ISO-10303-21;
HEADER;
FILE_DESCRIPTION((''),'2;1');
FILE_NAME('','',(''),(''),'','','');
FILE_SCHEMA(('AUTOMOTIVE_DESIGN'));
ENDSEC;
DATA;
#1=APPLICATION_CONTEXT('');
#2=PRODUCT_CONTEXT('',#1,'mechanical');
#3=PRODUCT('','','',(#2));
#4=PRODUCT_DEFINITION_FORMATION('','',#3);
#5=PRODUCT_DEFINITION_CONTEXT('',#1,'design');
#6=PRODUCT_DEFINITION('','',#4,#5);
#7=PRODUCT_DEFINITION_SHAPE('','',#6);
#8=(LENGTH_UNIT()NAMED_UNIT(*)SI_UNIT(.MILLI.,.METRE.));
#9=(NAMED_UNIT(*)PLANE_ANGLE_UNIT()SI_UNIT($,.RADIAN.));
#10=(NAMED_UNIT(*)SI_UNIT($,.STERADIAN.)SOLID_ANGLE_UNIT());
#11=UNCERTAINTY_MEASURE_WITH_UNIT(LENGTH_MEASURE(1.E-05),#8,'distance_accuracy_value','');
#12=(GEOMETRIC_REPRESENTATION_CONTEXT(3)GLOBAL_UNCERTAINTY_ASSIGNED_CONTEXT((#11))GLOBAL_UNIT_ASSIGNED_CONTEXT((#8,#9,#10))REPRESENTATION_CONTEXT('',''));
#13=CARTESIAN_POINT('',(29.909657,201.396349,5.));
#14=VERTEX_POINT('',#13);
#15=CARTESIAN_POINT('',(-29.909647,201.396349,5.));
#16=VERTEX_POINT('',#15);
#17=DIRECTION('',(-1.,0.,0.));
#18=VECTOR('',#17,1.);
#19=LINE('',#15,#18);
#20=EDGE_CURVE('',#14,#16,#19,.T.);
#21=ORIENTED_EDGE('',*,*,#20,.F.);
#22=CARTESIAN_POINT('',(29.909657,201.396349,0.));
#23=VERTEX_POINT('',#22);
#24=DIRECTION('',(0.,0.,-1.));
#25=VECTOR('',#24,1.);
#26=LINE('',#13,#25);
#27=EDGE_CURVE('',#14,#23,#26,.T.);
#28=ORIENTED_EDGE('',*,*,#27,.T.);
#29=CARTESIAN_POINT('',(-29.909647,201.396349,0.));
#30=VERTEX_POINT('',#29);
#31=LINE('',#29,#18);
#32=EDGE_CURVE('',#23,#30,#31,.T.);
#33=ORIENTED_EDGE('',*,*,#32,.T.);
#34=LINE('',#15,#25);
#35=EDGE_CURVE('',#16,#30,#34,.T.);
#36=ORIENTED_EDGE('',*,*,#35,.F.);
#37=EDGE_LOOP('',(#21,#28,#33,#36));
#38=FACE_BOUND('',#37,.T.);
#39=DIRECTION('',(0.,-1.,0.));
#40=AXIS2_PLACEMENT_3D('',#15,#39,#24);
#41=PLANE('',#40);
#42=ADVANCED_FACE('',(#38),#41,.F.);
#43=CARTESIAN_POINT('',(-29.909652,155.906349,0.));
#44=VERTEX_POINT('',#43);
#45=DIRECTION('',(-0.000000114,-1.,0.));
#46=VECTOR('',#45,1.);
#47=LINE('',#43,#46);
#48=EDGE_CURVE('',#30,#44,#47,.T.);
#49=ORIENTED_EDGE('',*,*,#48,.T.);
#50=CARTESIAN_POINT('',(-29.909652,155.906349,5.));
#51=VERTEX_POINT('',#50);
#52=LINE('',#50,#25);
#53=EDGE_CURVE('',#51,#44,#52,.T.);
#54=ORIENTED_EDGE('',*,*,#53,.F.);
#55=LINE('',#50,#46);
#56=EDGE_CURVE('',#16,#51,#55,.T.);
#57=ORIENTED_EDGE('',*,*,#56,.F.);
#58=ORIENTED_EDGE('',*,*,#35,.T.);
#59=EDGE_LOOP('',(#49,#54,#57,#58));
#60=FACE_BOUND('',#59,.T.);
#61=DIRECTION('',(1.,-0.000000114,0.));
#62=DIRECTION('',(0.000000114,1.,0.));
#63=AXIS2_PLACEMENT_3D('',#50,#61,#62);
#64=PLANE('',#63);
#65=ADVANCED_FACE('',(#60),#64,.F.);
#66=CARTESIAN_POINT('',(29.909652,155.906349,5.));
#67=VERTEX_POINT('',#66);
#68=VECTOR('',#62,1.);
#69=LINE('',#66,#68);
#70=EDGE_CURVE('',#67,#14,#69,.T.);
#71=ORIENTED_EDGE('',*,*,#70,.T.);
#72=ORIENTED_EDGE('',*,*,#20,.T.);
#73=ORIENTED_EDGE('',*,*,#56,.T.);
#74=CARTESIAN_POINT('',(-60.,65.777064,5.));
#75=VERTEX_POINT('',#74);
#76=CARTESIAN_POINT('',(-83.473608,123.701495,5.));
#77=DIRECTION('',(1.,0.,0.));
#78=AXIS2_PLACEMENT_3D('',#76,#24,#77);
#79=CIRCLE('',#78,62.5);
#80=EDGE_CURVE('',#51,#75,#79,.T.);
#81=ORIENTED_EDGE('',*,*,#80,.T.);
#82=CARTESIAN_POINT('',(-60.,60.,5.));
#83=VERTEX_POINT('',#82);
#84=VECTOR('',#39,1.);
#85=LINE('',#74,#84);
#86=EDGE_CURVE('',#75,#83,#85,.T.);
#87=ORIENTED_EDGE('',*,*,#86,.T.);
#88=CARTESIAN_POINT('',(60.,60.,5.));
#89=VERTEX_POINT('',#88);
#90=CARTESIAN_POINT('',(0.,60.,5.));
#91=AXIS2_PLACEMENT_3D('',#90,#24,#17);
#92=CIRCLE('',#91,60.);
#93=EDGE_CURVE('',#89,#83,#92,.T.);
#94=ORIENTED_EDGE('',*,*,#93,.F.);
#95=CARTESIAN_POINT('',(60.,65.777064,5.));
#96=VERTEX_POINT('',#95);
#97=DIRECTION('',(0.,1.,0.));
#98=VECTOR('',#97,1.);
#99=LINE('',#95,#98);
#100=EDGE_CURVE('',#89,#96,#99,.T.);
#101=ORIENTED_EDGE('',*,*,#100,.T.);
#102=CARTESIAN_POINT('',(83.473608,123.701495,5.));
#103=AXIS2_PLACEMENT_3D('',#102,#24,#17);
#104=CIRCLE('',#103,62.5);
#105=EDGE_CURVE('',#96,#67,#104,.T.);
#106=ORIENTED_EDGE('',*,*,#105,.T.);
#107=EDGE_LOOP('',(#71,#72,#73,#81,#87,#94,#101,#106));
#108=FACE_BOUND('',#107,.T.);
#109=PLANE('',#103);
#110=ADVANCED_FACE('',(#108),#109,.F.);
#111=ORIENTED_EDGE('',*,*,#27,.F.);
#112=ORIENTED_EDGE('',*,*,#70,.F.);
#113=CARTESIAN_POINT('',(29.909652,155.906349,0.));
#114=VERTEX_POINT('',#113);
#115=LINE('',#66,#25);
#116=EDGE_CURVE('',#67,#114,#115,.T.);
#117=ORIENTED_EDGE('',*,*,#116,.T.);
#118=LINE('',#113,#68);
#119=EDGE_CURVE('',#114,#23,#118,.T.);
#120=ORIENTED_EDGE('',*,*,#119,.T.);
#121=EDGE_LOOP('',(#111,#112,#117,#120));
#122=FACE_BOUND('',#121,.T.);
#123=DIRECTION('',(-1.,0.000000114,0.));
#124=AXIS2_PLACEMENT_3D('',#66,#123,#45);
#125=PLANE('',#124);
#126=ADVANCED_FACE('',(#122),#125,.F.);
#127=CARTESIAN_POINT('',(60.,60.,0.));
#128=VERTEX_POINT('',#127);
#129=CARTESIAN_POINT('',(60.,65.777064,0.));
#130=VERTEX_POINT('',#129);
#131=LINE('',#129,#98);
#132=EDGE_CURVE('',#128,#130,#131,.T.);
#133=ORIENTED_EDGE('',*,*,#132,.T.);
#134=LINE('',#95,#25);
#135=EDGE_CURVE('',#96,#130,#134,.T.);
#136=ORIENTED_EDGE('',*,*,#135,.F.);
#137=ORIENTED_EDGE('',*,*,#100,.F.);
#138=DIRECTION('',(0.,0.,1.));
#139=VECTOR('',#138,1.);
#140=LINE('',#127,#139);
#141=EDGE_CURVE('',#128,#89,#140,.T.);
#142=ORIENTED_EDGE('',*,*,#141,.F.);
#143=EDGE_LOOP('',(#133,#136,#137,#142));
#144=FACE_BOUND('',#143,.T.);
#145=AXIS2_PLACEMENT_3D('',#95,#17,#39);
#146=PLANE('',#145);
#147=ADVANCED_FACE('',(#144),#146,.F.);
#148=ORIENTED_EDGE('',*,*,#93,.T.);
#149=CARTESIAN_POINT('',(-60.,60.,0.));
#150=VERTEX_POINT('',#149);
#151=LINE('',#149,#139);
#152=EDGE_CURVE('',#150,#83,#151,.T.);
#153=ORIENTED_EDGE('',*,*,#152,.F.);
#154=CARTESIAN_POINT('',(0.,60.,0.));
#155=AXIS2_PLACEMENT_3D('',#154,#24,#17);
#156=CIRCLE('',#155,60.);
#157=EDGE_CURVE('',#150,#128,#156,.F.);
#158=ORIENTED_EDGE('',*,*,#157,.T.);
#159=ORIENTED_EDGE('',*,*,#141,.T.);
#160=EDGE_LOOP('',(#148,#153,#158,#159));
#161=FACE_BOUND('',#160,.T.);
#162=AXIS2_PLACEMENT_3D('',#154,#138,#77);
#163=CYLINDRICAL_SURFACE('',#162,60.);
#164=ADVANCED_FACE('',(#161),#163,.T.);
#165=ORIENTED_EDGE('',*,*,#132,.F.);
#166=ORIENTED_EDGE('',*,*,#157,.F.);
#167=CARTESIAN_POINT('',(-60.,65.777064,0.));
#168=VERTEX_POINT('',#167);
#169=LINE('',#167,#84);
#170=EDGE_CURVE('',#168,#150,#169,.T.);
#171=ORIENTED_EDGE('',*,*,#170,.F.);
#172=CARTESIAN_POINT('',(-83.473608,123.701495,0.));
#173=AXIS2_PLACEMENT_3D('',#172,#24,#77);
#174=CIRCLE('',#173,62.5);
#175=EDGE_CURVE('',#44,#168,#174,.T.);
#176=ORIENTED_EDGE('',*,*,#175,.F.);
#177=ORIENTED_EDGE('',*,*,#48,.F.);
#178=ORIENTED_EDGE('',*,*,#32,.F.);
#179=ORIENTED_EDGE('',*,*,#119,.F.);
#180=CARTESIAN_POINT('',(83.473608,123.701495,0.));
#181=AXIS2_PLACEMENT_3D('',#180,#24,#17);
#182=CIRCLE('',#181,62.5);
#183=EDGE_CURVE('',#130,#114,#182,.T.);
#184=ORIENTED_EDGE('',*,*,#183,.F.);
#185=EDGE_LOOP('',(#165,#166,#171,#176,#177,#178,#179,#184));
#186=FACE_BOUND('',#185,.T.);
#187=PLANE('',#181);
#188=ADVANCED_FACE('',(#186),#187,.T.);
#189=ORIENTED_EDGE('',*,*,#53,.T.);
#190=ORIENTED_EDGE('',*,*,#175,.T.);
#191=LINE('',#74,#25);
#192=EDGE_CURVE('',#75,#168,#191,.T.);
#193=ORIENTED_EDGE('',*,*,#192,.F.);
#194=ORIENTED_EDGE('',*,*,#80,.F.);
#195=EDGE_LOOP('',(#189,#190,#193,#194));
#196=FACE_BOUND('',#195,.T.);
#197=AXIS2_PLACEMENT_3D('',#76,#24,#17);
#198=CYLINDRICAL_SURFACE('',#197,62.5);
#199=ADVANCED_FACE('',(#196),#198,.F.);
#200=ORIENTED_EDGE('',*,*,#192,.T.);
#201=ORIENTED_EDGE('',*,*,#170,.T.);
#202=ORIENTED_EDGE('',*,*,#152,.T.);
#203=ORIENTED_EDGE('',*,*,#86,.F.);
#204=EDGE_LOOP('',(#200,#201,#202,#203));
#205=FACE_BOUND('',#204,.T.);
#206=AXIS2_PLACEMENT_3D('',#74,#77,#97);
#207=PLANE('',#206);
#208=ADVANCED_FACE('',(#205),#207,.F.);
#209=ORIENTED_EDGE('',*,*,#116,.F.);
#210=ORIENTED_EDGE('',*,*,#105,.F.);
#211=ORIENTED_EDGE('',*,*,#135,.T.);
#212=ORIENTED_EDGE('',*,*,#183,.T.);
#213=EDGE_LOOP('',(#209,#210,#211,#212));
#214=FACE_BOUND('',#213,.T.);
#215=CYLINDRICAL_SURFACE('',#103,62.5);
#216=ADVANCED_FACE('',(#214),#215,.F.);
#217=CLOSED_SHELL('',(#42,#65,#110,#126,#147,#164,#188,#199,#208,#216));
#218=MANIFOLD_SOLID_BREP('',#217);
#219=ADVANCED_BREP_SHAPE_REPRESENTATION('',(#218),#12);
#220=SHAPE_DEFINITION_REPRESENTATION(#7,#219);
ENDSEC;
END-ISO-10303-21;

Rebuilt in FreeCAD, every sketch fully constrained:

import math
import FreeCAD as App
import Part
import Sketcher
Q = App.Units.Quantity

doc = App.newDocument("Part")
params = doc.addObject("Spreadsheet::Sheet", "Params")
for row, (alias, value) in enumerate([
    ("sketch1_radius", "62.5 mm"),
    ("sketch1_width", "120 mm"),
    ("sketch1_length", "45.49 mm"),
    ("pad1_length", "5 mm"),
    ("sketch2_radius", "60 mm"),
], start=1):
    params.set(f"A{row}", alias)
    params.set(f"B{row}", "=" + value)
    params.setAlias(f"B{row}", alias)

body = doc.addObject("PartDesign::Body", "Body")

sketch1 = doc.addObject("Sketcher::SketchObject", "Sketch")
body.addObject(sketch1)
sketch1.AttachmentSupport = (doc.XY_Plane, [""])
sketch1.MapMode = "FlatFace"
sketch1.addGeometry(Part.LineSegment(App.Vector(60, 0, 0), App.Vector(60, 65.777064, 0)), False)
sketch1.addGeometry(Part.ArcOfCircle(Part.Circle(App.Vector(83.473608, 123.701495, 0), App.Vector(0, 0, 1), 62.5), math.radians(148.983983), math.radians(247.939976)), False)
sketch1.addGeometry(Part.LineSegment(App.Vector(29.909652, 155.906349, 0), App.Vector(29.909657, 201.396349, 0)), False)
sketch1.addGeometry(Part.LineSegment(App.Vector(29.909657, 201.396349, 0), App.Vector(-29.909647, 201.396349, 0)), False)
sketch1.addGeometry(Part.LineSegment(App.Vector(-29.909647, 201.396349, 0), App.Vector(-29.909652, 155.906349, 0)), False)
sketch1.addGeometry(Part.ArcOfCircle(Part.Circle(App.Vector(-83.473608, 123.701495, 0), App.Vector(0, 0, 1), 62.5), math.radians(-67.939976), math.radians(31.016017)), False)
sketch1.addGeometry(Part.LineSegment(App.Vector(-60, 65.777064, 0), App.Vector(-60, 0, 0)), False)
sketch1.addGeometry(Part.LineSegment(App.Vector(-60, 0, 0), App.Vector(60, 0, 0)), False)
sketch1.addConstraint(Sketcher.Constraint("Coincident", 0, 2, 1, 2))
sketch1.addConstraint(Sketcher.Constraint("Coincident", 1, 1, 2, 1))
sketch1.addConstraint(Sketcher.Constraint("Coincident", 2, 2, 3, 1))
sketch1.addConstraint(Sketcher.Constraint("Coincident", 3, 2, 4, 1))
sketch1.addConstraint(Sketcher.Constraint("Coincident", 4, 2, 5, 2))
sketch1.addConstraint(Sketcher.Constraint("Coincident", 5, 1, 6, 1))
sketch1.addConstraint(Sketcher.Constraint("Coincident", 6, 2, 7, 1))
sketch1.addConstraint(Sketcher.Constraint("Coincident", 7, 2, 0, 1))
sketch1.addConstraint(Sketcher.Constraint("Vertical", 0))
sketch1.addConstraint(Sketcher.Constraint("Horizontal", 3))
sketch1.addConstraint(Sketcher.Constraint("Vertical", 6))
sketch1.addConstraint(Sketcher.Constraint("Horizontal", 7))
sketch1.addConstraint(Sketcher.Constraint("Equal", 1, 5))
sketch1.addConstraint(Sketcher.Constraint("Symmetric", 6, 2, 7, 2, -1, 1))
sketch1.addConstraint(Sketcher.Constraint("Symmetric", 1, 3, 5, 3, -2))
sketch1.addConstraint(Sketcher.Constraint("Parallel", 2, 4))
sketch1.addConstraint(Sketcher.Constraint("Horizontal", 1, 1, 4, 2))
sketch1.addConstraint(Sketcher.Constraint("Radius", 1, Q("62.5 mm")))
sketch1.addConstraint(Sketcher.Constraint("DistanceX", 7, 1, 7, 2, Q("120 mm")))
sketch1.addConstraint(Sketcher.Constraint("Angle", 2, Q("89.999993 deg")))
sketch1.addConstraint(Sketcher.Constraint("Distance", 2, Q("45.49 mm")))
sketch1.addConstraint(Sketcher.Constraint("DistanceX", 3, 2, 1, 1, Q("59.819299 mm")))
sketch1.addConstraint(Sketcher.Constraint("DistanceY", 0, 1, 0, 2, Q("65.777064 mm")))
sketch1.addConstraint(Sketcher.Constraint("DistanceY", -1, 1, 1, 1, Q("155.906349 mm")))
sketch1.setExpression("Constraints[17]", "Params.sketch1_radius")
sketch1.setExpression("Constraints[18]", "Params.sketch1_width")
sketch1.setExpression("Constraints[20]", "Params.sketch1_length")
pad1 = doc.addObject("PartDesign::Pad", "Pad")
body.addObject(pad1)
pad1.Profile = sketch1
pad1.setExpression("Length", "Params.pad1_length")

sketch2 = doc.addObject("Sketcher::SketchObject", "Sketch001")
body.addObject(sketch2)
sketch2.AttachmentSupport = (doc.XY_Plane, [""])
sketch2.MapMode = "FlatFace"
sketch2.AttachmentOffset = App.Placement(App.Vector(0, 0, 5), App.Rotation())
sketch2.addGeometry(Part.LineSegment(App.Vector(-60, 60, 0), App.Vector(-60, -14.155296, 0)), False)
sketch2.addGeometry(Part.LineSegment(App.Vector(-60, -14.155296, 0), App.Vector(60, -14.155296, 0)), False)
sketch2.addGeometry(Part.LineSegment(App.Vector(60, -14.155296, 0), App.Vector(60, 60, 0)), False)
sketch2.addGeometry(Part.ArcOfCircle(Part.Circle(App.Vector(0, 60, 0), App.Vector(0, 0, 1), 60), math.radians(180), math.radians(360)), False)
sketch2.addConstraint(Sketcher.Constraint("Coincident", 0, 2, 1, 1))
sketch2.addConstraint(Sketcher.Constraint("Coincident", 1, 2, 2, 1))
sketch2.addConstraint(Sketcher.Constraint("Tangent", 2, 2, 3, 2))
sketch2.addConstraint(Sketcher.Constraint("Tangent", 3, 1, 0, 1))
sketch2.addConstraint(Sketcher.Constraint("Vertical", 0))
sketch2.addConstraint(Sketcher.Constraint("Horizontal", 1))
sketch2.addConstraint(Sketcher.Constraint("Vertical", 2))
sketch2.addConstraint(Sketcher.Constraint("PointOnObject", 3, 3, -2))
sketch2.addConstraint(Sketcher.Constraint("Radius", 3, Q("60 mm")))
sketch2.addConstraint(Sketcher.Constraint("DistanceY", -1, 1, 3, 3, Q("60 mm")))
sketch2.addConstraint(Sketcher.Constraint("DistanceY", 0, 2, 0, 1, Q("74.155296 mm")))
sketch2.setExpression("Constraints[8]", "Params.sketch2_radius")
pocket1 = doc.addObject("PartDesign::Pocket", "Pocket")
body.addObject(pocket1)
pocket1.Profile = sketch2
pocket1.Type = "ThroughAll"

doc.recompute()
